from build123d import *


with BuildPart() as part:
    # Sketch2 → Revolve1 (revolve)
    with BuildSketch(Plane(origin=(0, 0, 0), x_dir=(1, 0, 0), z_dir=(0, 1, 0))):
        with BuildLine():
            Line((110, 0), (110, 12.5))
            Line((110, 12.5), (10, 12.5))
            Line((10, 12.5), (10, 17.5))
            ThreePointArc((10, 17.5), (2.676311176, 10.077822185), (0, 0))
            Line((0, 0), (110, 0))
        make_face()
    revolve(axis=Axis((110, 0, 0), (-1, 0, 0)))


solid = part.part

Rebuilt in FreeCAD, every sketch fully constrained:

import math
import FreeCAD as App
import Part
import Sketcher

doc = App.newDocument("Part")
body = doc.addObject("PartDesign::Body", "Body")

# Sketch on XZ plane
sketch1 = doc.addObject("Sketcher::SketchObject", "Sketch")
body.addObject(sketch1)
sketch1.AttachmentSupport = (doc.XZ_Plane, [""])
sketch1.MapMode = "FlatFace"
sketch1.addGeometry([
    Part.LineSegment(App.Vector(110, 0, 0), App.Vector(110, -12, 0)),  # 0
    Part.LineSegment(App.Vector(110, -12, 0), App.Vector(10, -12, 0)),  # 1
    Part.LineSegment(App.Vector(10, -12, 0), App.Vector(10, -18, 0)),  # 2
    Part.ArcOfCircle(Part.Circle(App.Vector(20, 0, 0), App.Vector(0, 0, 1), 20), math.radians(-180), math.radians(-121)),  # 3
    Part.LineSegment(App.Vector(0, 0, 0), App.Vector(110, 0, 0)),  # 4
], False)
sketch1.addConstraint([
    Sketcher.Constraint("Coincident", 0, 2, 1, 1),
    Sketcher.Constraint("Coincident", 1, 2, 2, 1),
    Sketcher.Constraint("Coincident", 2, 2, 3, 2),
    Sketcher.Constraint("Coincident", 3, 1, 4, 1),
    Sketcher.Constraint("Coincident", 4, 2, 0, 1),
    Sketcher.Constraint("Vertical", 0),
    Sketcher.Constraint("Horizontal", 1),
    Sketcher.Constraint("Vertical", 2),
    Sketcher.Constraint("Horizontal", 4),
    Sketcher.Constraint("Coincident", 3, 1, -1, 1),
    Sketcher.Constraint("PointOnObject", 3, 3, -1),
    Sketcher.Constraint("DistanceX", 1, 2, 1, 1, 100.0),
    Sketcher.Constraint("DistanceX", 4, 1, 4, 2, 110.0),
    Sketcher.Constraint("DistanceY", 2, 2, 2, 1, 5.0),
    Sketcher.Constraint("DistanceY", 0, 2, 0, 1, 12.5),
])
revolution = doc.addObject("PartDesign::Revolution", "Revolution")
body.addObject(revolution)
revolution.Profile = sketch1
revolution.ReferenceAxis = (sketch1, ["H_Axis"])
revolution.Angle = 360

doc.recompute()
